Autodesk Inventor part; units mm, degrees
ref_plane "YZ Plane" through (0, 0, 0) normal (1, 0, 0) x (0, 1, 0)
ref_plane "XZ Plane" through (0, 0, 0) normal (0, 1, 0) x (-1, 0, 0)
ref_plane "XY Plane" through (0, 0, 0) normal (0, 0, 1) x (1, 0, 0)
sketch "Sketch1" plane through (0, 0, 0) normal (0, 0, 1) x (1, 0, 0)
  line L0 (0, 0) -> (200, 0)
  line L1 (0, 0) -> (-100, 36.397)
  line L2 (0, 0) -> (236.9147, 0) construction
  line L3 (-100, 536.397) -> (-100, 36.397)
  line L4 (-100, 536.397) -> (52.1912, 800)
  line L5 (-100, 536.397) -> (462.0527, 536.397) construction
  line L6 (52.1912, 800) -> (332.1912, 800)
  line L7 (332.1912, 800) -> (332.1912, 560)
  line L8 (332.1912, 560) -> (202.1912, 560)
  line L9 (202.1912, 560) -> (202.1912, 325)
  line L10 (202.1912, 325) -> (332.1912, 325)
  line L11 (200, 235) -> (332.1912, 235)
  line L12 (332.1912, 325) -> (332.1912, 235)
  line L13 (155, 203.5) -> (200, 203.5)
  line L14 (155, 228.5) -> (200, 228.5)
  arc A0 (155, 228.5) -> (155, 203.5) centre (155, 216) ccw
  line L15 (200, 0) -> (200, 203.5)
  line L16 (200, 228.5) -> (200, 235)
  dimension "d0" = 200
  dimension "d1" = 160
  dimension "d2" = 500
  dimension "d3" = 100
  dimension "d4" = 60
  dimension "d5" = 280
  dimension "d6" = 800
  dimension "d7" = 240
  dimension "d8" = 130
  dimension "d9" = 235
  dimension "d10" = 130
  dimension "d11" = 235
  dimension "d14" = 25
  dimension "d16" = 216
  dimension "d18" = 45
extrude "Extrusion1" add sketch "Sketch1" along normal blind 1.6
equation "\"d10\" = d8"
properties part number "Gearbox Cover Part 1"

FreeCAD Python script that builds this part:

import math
import FreeCAD as App
import Part
import Sketcher

V = App.Vector
Q = App.Units.Quantity

doc = App.newDocument("Part")
body = doc.addObject("PartDesign::Body", "Body")

# Sketch on XY plane
sketch1 = body.newObject("Sketcher::SketchObject", "Sketch")
sketch1.AttachmentSupport = (doc.getObject("XY_Plane"), [""])
sketch1.MapMode = "FlatFace"
sketch1.addGeometry([
    Part.LineSegment(V(-100, 36, 0), V(0, 0, 0)),  # 0
    Part.LineSegment(V(0, 0, 0), V(200, 0, 0)),  # 1
    Part.LineSegment(V(200, 0, 0), V(200, 204, 0)),  # 2
    Part.LineSegment(V(200, 204, 0), V(155, 204, 0)),  # 3
    Part.ArcOfCircle(Part.Circle(V(155, 216, 0), V(0, 0, 1), 12), math.radians(90), math.radians(270)),  # 4
    Part.LineSegment(V(155, 228, 0), V(200, 228, 0)),  # 5
    Part.LineSegment(V(200, 228, 0), V(200, 235, 0)),  # 6
    Part.LineSegment(V(200, 235, 0), V(332, 235, 0)),  # 7
    Part.LineSegment(V(332, 235, 0), V(332, 325, 0)),  # 8
    Part.LineSegment(V(332, 325, 0), V(202, 325, 0)),  # 9
    Part.LineSegment(V(202, 325, 0), V(202, 560, 0)),  # 10
    Part.LineSegment(V(202, 560, 0), V(332, 560, 0)),  # 11
    Part.LineSegment(V(332, 560, 0), V(332, 800, 0)),  # 12
    Part.LineSegment(V(332, 800, 0), V(52, 800, 0)),  # 13
    Part.LineSegment(V(52, 800, 0), V(-100, 536, 0)),  # 14
    Part.LineSegment(V(-100, 536, 0), V(-100, 36, 0)),  # 15
], False)
sketch1.addConstraint([
    Sketcher.Constraint("Coincident", 0, 2, 1, 1),
    Sketcher.Constraint("Coincident", 1, 2, 2, 1),
    Sketcher.Constraint("Coincident", 2, 2, 3, 1),
    Sketcher.Constraint("Tangent", 3, 2, 4, 2),
    Sketcher.Constraint("Tangent", 4, 1, 5, 1),
    Sketcher.Constraint("Coincident", 5, 2, 6, 1),
    Sketcher.Constraint("Coincident", 6, 2, 7, 1),
    Sketcher.Constraint("Coincident", 7, 2, 8, 1),
    Sketcher.Constraint("Coincident", 8, 2, 9, 1),
    Sketcher.Constraint("Coincident", 9, 2, 10, 1),
    Sketcher.Constraint("Coincident", 10, 2, 11, 1),
    Sketcher.Constraint("Coincident", 11, 2, 12, 1),
    Sketcher.Constraint("Coincident", 12, 2, 13, 1),
    Sketcher.Constraint("Coincident", 13, 2, 14, 1),
    Sketcher.Constraint("Coincident", 14, 2, 15, 1),
    Sketcher.Constraint("Coincident", 15, 2, 0, 1),
    Sketcher.Constraint("Horizontal", 1),
    Sketcher.Constraint("Vertical", 2),
    Sketcher.Constraint("Horizontal", 3),
    Sketcher.Constraint("Horizontal", 5),
    Sketcher.Constraint("Vertical", 6),
    Sketcher.Constraint("Horizontal", 7),
    Sketcher.Constraint("Vertical", 8),
    Sketcher.Constraint("Horizontal", 9),
    Sketcher.Constraint("Vertical", 10),
    Sketcher.Constraint("Horizontal", 11),
    Sketcher.Constraint("Vertical", 12),
    Sketcher.Constraint("Horizontal", 13),
    Sketcher.Constraint("Vertical", 15),
    Sketcher.Constraint("Coincident", 0, 2, -1, 1),
    Sketcher.Constraint("Vertical", 2, 2, 5, 2),
    Sketcher.Constraint("Vertical", 8, 2, 11, 2),
    Sketcher.Constraint("Radius", 4, 12.5),
    Sketcher.Constraint("DistanceX", 1, 1, 1, 2, 200.0),
    Sketcher.Constraint("DistanceX", 3, 2, 3, 1, 45.0),
    Sketcher.Constraint("DistanceX", 9, 2, 9, 1, 130.0),
    Sketcher.Constraint("DistanceX", 13, 2, 13, 1, 280.0),
    Sketcher.Constraint("DistanceY", 10, 1, 10, 2, 235.0),
    Sketcher.Constraint("DistanceY", 12, 1, 12, 2, 240.0),
    Sketcher.Constraint("DistanceY", 15, 2, 15, 1, 500.0),
    Sketcher.Constraint("DistanceY", -1, 1, 4, 3, 216.0),
    Sketcher.Constraint("DistanceY", -1, 1, 6, 2, 235.0),
    Sketcher.Constraint("DistanceY", -1, 1, 12, 2, 800.0),
    Sketcher.Constraint("DistanceX", 14, 2, -1, 1, 100.0),
    Sketcher.Constraint("Angle", 0, Q("-20 deg")),
    Sketcher.Constraint("Angle", 14, Q("-120 deg")),
])
pad1 = body.newObject("PartDesign::Pad", "Pad")
pad1.Profile = sketch1
pad1.Length = 1.6

doc.recompute()
